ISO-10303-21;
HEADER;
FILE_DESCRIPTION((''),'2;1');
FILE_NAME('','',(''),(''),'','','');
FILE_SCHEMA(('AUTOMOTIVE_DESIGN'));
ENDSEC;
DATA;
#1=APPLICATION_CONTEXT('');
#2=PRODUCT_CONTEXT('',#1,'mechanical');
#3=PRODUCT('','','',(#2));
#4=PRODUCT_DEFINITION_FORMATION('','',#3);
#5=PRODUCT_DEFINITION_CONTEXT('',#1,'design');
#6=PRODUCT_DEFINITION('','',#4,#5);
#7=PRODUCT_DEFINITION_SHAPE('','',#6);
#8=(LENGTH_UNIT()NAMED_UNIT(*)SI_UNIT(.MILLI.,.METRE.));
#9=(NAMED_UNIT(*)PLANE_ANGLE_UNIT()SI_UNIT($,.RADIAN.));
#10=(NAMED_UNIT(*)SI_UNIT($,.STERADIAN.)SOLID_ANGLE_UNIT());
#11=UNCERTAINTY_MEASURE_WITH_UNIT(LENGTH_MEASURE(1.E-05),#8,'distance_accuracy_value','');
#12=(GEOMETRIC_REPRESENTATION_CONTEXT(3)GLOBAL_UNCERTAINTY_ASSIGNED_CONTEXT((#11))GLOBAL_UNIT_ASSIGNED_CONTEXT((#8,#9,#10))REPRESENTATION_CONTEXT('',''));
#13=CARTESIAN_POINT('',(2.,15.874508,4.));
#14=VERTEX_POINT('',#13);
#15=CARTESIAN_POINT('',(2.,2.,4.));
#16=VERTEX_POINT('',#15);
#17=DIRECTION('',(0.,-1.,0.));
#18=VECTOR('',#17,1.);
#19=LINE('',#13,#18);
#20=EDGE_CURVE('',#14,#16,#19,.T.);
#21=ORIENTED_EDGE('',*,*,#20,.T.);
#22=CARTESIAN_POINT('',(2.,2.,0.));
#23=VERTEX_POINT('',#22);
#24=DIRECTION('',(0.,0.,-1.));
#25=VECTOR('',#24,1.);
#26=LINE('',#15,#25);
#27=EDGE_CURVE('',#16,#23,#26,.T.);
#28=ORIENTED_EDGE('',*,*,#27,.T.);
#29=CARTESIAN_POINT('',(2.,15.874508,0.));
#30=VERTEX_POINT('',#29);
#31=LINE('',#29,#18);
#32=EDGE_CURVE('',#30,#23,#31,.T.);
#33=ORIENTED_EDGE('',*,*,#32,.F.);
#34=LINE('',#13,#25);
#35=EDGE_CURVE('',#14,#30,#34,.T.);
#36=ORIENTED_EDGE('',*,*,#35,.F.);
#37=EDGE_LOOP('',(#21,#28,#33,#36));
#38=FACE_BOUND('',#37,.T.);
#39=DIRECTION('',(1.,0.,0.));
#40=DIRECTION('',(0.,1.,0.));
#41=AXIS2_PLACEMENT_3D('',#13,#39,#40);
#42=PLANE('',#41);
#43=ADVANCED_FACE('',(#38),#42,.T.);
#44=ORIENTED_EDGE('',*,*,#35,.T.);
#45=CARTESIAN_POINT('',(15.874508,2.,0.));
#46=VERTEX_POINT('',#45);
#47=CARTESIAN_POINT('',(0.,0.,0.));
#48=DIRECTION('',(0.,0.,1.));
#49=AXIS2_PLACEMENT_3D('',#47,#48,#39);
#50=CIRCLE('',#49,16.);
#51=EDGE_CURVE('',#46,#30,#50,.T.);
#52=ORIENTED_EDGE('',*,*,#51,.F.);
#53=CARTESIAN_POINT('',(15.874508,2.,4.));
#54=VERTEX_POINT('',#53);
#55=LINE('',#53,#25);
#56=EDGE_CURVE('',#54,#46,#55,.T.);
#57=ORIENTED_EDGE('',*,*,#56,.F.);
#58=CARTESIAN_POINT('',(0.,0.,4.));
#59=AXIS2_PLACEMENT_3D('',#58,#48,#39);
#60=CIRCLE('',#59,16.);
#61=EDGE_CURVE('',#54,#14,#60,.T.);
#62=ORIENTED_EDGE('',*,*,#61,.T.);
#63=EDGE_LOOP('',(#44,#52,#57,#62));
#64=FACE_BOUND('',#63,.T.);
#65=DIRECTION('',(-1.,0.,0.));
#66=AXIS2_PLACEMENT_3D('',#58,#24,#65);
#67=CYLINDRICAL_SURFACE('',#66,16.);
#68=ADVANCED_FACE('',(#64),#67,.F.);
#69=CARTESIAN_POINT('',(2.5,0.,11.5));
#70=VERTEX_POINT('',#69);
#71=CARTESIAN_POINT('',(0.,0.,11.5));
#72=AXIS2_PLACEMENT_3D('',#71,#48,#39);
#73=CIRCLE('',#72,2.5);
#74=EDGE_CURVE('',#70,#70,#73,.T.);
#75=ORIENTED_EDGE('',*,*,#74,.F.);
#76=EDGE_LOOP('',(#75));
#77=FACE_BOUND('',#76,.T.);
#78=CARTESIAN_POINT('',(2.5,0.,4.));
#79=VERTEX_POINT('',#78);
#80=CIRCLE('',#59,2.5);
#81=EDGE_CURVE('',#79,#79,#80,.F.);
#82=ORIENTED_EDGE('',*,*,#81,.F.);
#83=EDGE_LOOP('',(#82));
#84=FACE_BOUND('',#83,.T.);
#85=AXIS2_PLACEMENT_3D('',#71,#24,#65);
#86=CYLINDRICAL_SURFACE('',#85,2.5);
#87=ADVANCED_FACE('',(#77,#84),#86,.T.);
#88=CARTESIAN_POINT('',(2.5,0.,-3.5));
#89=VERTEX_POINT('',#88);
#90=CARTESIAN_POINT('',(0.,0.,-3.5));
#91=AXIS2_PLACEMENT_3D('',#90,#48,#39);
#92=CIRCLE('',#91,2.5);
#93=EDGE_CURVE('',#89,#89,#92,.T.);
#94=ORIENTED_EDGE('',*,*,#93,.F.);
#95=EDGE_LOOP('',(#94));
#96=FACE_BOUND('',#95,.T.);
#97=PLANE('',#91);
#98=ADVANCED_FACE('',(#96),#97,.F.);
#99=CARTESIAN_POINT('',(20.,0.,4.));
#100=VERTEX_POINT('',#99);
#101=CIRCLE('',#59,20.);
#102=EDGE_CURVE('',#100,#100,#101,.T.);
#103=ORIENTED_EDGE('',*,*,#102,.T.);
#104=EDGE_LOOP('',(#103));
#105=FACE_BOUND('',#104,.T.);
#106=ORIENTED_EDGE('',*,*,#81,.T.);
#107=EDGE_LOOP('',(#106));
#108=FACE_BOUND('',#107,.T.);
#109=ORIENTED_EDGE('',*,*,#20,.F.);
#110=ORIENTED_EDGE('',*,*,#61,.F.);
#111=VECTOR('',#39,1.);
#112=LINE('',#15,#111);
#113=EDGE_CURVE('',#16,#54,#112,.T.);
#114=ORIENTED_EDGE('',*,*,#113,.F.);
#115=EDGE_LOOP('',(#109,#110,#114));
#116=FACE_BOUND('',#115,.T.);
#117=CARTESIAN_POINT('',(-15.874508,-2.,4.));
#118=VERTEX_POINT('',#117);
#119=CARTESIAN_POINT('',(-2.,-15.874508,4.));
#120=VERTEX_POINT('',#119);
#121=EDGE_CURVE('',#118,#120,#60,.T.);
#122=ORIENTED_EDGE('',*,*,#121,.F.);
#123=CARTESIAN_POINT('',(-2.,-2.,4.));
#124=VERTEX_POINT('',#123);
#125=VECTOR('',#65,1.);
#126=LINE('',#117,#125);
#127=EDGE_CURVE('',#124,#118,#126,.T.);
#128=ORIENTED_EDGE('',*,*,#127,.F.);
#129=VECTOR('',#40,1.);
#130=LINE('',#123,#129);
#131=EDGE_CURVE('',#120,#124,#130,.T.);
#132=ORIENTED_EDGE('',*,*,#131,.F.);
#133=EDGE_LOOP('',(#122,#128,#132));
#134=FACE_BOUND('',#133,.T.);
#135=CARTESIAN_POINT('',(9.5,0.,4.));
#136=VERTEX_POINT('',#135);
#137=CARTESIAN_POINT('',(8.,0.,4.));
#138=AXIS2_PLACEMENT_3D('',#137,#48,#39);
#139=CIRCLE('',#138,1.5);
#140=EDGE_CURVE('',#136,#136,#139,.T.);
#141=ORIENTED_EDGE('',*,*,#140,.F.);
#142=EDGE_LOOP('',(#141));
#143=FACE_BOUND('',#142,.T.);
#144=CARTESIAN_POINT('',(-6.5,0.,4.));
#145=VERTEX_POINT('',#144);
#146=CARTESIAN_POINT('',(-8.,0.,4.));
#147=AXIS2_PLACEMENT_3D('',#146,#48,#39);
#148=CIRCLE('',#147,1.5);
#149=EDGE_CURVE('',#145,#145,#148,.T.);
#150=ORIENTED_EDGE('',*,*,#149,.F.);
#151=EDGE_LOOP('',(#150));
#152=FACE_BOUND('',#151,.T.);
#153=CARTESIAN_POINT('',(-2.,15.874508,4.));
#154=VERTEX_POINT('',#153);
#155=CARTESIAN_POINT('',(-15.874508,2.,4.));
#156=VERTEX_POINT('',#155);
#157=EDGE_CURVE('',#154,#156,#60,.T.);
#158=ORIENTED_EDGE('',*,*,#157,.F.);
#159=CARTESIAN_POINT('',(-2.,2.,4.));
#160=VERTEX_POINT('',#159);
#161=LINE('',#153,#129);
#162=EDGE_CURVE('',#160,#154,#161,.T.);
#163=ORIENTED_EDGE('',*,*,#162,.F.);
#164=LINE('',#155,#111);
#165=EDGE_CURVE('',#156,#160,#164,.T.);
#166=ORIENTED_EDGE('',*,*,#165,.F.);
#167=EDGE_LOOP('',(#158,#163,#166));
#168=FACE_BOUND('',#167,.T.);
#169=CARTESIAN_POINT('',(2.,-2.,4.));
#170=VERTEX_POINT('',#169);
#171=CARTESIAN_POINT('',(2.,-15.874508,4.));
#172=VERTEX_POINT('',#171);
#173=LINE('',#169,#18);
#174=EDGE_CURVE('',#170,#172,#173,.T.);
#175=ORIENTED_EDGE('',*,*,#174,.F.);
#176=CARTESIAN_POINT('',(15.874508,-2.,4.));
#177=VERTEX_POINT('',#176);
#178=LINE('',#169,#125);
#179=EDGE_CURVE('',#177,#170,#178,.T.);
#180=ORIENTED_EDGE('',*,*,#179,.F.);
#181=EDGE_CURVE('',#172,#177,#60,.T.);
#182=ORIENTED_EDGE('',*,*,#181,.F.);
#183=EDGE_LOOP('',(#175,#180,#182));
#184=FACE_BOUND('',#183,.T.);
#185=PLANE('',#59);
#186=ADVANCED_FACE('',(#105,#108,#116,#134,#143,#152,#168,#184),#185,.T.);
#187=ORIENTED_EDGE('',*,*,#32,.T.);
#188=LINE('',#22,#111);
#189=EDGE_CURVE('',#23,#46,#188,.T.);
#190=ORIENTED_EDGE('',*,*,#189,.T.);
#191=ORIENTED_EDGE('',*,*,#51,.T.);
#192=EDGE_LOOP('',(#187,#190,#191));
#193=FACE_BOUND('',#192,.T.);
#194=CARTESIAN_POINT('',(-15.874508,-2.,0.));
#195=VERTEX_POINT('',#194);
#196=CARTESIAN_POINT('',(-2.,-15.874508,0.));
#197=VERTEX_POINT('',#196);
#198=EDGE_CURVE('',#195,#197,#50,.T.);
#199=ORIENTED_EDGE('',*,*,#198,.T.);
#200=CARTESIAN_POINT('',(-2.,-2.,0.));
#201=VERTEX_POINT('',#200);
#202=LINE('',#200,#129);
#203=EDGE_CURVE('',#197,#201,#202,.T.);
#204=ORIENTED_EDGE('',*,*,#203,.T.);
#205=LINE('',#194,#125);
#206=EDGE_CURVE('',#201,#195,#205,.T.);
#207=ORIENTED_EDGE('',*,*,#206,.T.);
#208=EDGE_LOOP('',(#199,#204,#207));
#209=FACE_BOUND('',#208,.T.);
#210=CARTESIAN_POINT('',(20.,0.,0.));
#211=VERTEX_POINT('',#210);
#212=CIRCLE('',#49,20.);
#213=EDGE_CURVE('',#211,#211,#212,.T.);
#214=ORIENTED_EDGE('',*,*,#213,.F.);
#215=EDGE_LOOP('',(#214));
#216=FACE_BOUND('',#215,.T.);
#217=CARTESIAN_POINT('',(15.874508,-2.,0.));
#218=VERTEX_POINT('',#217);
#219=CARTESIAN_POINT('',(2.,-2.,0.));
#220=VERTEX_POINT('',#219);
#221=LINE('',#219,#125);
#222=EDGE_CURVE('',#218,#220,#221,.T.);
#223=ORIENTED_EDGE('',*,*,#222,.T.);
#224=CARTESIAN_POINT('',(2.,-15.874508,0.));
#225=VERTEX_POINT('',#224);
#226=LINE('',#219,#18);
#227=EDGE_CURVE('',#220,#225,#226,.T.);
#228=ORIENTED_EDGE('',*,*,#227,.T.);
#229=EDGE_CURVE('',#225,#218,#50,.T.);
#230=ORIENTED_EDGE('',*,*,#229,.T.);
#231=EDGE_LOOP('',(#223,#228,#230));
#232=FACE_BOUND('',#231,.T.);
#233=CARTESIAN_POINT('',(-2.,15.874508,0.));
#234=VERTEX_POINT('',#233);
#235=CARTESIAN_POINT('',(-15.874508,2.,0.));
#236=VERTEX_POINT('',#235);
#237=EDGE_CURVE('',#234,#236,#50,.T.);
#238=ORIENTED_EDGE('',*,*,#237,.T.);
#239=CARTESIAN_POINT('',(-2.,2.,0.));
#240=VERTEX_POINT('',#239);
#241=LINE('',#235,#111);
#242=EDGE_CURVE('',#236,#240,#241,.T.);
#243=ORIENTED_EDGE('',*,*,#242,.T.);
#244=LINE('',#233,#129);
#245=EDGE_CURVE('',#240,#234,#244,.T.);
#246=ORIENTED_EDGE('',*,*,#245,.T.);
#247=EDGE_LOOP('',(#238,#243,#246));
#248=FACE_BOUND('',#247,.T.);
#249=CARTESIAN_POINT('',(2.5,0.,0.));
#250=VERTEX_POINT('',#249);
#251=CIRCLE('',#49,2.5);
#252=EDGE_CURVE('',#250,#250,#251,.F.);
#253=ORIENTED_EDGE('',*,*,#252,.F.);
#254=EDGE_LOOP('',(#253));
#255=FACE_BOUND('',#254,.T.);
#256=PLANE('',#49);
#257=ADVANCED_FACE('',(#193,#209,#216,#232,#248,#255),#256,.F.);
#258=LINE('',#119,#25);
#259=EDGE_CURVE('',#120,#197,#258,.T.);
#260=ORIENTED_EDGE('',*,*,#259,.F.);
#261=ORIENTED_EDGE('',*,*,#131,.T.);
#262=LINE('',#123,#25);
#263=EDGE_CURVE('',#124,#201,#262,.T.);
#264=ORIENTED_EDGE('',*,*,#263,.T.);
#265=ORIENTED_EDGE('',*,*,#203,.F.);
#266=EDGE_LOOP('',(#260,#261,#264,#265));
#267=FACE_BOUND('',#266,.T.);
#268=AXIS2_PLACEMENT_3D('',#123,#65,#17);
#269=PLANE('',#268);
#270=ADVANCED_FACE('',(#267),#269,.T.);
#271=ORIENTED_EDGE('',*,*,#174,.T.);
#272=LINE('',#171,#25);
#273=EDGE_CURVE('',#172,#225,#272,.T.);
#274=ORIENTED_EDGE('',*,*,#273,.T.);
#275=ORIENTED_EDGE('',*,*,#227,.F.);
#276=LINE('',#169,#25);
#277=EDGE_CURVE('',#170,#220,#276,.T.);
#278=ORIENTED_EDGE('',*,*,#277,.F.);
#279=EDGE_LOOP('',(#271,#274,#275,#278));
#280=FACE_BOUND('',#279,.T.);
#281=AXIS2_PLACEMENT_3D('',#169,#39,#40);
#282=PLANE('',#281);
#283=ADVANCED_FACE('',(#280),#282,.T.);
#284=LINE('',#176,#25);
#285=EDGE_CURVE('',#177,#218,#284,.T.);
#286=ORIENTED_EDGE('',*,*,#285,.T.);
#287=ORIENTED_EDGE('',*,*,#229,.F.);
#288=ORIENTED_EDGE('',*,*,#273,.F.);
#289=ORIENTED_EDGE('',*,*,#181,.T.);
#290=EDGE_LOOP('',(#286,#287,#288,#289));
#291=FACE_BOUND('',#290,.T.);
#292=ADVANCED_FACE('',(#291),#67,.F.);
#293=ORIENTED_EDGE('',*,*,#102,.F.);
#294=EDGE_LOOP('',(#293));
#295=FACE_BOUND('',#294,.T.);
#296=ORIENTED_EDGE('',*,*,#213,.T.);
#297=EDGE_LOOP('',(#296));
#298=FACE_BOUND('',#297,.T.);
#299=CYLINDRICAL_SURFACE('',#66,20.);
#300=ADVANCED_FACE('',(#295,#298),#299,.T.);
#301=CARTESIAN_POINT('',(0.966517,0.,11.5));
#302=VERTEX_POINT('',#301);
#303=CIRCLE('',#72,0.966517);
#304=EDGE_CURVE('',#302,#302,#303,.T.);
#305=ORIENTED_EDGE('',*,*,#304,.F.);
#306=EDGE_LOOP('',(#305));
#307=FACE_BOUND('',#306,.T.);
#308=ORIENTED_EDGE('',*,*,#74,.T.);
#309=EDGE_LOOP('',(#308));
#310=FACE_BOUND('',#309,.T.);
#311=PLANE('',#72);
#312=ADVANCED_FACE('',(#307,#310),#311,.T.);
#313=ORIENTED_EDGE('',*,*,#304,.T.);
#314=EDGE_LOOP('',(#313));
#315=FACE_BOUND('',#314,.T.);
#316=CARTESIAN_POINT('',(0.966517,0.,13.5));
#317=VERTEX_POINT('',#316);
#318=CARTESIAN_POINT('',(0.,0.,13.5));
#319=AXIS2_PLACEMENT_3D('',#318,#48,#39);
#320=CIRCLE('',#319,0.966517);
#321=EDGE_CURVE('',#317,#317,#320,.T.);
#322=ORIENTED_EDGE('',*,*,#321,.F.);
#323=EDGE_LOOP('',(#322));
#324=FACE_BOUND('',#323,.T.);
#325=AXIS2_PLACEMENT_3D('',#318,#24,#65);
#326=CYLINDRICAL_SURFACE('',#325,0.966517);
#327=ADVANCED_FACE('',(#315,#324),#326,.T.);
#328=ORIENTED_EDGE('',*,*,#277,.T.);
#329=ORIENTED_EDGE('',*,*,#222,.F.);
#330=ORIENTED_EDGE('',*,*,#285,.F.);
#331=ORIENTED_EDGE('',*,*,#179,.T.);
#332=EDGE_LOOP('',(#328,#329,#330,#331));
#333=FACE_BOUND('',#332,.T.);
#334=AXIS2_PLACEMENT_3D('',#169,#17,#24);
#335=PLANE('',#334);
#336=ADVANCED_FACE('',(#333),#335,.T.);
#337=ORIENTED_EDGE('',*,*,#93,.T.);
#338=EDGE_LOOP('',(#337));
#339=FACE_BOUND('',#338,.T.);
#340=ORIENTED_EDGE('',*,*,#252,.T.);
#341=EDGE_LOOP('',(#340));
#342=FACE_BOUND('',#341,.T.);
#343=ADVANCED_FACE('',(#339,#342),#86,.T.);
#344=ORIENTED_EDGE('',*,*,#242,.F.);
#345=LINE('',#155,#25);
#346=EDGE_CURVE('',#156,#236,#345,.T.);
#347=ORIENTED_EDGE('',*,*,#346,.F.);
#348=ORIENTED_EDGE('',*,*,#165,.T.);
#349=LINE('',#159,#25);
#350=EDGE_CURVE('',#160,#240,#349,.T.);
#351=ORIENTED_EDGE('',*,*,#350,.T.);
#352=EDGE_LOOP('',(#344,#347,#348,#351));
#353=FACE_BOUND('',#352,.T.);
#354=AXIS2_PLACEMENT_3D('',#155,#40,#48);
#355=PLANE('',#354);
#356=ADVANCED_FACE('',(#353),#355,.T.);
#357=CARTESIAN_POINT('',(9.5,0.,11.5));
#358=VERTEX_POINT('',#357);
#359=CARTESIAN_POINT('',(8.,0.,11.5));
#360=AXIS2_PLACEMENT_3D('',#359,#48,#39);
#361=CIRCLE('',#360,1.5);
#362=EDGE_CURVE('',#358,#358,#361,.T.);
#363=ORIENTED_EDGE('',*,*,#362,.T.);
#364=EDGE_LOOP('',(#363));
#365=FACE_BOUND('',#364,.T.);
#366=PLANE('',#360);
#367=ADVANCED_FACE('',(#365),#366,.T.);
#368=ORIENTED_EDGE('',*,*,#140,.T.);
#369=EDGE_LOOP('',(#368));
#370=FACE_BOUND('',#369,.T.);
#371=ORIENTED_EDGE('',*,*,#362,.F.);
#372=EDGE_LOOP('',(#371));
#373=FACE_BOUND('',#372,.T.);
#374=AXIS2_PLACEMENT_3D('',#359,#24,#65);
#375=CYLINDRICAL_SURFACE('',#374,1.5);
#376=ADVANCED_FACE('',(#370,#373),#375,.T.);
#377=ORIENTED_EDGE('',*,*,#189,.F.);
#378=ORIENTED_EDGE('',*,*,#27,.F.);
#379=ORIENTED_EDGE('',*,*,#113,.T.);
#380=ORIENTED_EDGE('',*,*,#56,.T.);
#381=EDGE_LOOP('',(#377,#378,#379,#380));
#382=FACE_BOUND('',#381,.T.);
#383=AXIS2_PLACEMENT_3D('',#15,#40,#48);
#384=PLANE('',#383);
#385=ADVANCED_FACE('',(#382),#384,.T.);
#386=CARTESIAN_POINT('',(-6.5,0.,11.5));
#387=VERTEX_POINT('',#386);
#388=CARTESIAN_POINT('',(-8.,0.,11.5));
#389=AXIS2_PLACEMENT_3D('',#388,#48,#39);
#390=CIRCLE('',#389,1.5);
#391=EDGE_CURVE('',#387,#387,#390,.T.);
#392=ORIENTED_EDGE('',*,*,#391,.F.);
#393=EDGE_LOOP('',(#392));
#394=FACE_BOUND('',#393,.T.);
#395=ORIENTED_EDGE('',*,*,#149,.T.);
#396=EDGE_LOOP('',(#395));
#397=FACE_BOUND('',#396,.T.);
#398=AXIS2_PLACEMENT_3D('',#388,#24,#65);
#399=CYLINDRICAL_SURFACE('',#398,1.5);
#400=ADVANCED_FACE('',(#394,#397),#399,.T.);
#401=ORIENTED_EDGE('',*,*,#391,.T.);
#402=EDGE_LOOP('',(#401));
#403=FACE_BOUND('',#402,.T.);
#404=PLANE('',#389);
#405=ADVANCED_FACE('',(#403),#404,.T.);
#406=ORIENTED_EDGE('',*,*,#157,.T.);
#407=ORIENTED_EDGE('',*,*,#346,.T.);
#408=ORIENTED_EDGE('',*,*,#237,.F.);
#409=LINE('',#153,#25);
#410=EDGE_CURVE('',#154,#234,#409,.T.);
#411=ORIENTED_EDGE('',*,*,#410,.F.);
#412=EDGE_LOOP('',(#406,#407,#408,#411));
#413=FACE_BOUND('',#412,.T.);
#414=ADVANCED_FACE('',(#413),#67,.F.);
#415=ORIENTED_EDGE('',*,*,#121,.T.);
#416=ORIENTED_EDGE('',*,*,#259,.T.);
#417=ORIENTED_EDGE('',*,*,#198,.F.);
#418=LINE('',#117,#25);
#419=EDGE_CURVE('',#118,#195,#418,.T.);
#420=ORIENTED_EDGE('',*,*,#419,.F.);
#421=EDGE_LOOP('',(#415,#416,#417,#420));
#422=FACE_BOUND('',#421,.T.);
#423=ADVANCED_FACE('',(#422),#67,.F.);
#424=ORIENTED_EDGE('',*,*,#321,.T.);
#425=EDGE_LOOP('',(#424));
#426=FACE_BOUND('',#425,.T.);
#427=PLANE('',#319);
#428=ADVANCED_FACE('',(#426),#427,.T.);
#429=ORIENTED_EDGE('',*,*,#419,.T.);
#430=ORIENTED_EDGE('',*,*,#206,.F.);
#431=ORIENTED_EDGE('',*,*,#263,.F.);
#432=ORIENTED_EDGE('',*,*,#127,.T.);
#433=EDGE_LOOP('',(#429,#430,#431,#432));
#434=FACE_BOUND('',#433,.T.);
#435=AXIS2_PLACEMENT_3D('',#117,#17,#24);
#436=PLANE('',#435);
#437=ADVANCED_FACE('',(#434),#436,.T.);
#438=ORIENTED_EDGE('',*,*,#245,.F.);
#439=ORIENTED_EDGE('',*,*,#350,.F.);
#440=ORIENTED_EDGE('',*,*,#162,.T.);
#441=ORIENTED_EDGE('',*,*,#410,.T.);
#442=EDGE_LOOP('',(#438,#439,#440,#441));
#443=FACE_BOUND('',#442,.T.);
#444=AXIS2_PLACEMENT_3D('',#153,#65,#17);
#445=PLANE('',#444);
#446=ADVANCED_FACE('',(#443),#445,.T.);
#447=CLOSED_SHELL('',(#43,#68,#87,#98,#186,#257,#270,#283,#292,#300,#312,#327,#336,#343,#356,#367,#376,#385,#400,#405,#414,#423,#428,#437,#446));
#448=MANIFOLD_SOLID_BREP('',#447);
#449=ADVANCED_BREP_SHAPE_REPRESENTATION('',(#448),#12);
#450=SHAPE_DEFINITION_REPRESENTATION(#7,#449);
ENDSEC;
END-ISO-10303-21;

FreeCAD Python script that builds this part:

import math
import FreeCAD as App
import Part
import Sketcher

V = App.Vector
Q = App.Units.Quantity

doc = App.newDocument("Part")
body = doc.addObject("PartDesign::Body", "Body")

# Sketch on XY plane
sketch1 = body.newObject("Sketcher::SketchObject", "Sketch")
sketch1.AttachmentSupport = (doc.getObject("XY_Plane"), [""])
sketch1.MapMode = "FlatFace"
sketch1.addGeometry(Part.Circle(V(0, 0, 0), V(0, 0, 1), 20), False)
sketch1.addGeometry(Part.ArcOfCircle(Part.Circle(V(0, 0, 0), V(0, 0, 1), 16), math.radians(-173), math.radians(-97)), False)
sketch1.addGeometry(Part.LineSegment(V(-16, -2, 0), V(-2, -2, 0)), False)
sketch1.addGeometry(Part.LineSegment(V(-2, -2, 0), V(-2, -16, 0)), False)
sketch1.addGeometry(Part.LineSegment(V(2, -16, 0), V(2, -2, 0)), False)
sketch1.addGeometry(Part.LineSegment(V(2, -2, 0), V(16, -2, 0)), False)
sketch1.addGeometry(Part.ArcOfCircle(Part.Circle(V(0, 0, 0), V(0, 0, 1), 16), math.radians(-83), math.radians(-7)), False)
sketch1.addGeometry(Part.LineSegment(V(-2, 2, 0), V(-16, 2, 0)), False)
sketch1.addGeometry(Part.ArcOfCircle(Part.Circle(V(0, 0, 0), V(0, 0, 1), 16), math.radians(97), math.radians(173)), False)
sketch1.addGeometry(Part.LineSegment(V(-2, 16, 0), V(-2, 2, 0)), False)
sketch1.addGeometry(Part.LineSegment(V(2, 2, 0), V(2, 16, 0)), False)
sketch1.addGeometry(Part.ArcOfCircle(Part.Circle(V(0, 0, 0), V(0, 0, 1), 16), math.radians(7), math.radians(83)), False)
sketch1.addGeometry(Part.LineSegment(V(16, 2, 0), V(2, 2, 0)), False)
sketch1.addConstraint(Sketcher.Constraint("Coincident", 1, 1, 2, 1))
sketch1.addConstraint(Sketcher.Constraint("Coincident", 2, 2, 3, 1))
sketch1.addConstraint(Sketcher.Constraint("Coincident", 3, 2, 1, 2))
sketch1.addConstraint(Sketcher.Constraint("Coincident", 4, 2, 5, 1))
sketch1.addConstraint(Sketcher.Constraint("Coincident", 5, 2, 6, 2))
sketch1.addConstraint(Sketcher.Constraint("Coincident", 6, 1, 4, 1))
sketch1.addConstraint(Sketcher.Constraint("Coincident", 7, 2, 8, 2))
sketch1.addConstraint(Sketcher.Constraint("Coincident", 8, 1, 9, 1))
sketch1.addConstraint(Sketcher.Constraint("Coincident", 9, 2, 7, 1))
sketch1.addConstraint(Sketcher.Constraint("Coincident", 10, 2, 11, 2))
sketch1.addConstraint(Sketcher.Constraint("Coincident", 11, 1, 12, 1))
sketch1.addConstraint(Sketcher.Constraint("Coincident", 12, 2, 10, 1))
sketch1.addConstraint(Sketcher.Constraint("Horizontal", 2))
sketch1.addConstraint(Sketcher.Constraint("Vertical", 3))
sketch1.addConstraint(Sketcher.Constraint("Vertical", 4))
sketch1.addConstraint(Sketcher.Constraint("Horizontal", 5))
sketch1.addConstraint(Sketcher.Constraint("Horizontal", 7))
sketch1.addConstraint(Sketcher.Constraint("Vertical", 9))
sketch1.addConstraint(Sketcher.Constraint("Vertical", 10))
sketch1.addConstraint(Sketcher.Constraint("Horizontal", 12))
sketch1.addConstraint(Sketcher.Constraint("Coincident", 0, 3, -1, 1))
sketch1.addConstraint(Sketcher.Constraint("Coincident", 1, 3, -1, 1))
sketch1.addConstraint(Sketcher.Constraint("Coincident", 6, 3, -1, 1))
sketch1.addConstraint(Sketcher.Constraint("Coincident", 8, 3, -1, 1))
sketch1.addConstraint(Sketcher.Constraint("Coincident", 11, 3, -1, 1))
sketch1.addConstraint(Sketcher.Constraint("Equal", 1, 6))
sketch1.addConstraint(Sketcher.Constraint("Equal", 6, 8))
sketch1.addConstraint(Sketcher.Constraint("Equal", 8, 11))
sketch1.addConstraint(Sketcher.Constraint("Symmetric", 4, 2, 9, 2, -1, 1))
sketch1.addConstraint(Sketcher.Constraint("Symmetric", 2, 2, 12, 2, -1, 1))
sketch1.addConstraint(Sketcher.Constraint("Symmetric", 2, 2, 4, 2, -2))
sketch1.addConstraint(Sketcher.Constraint("Equal", 12, 3))
sketch1.addConstraint(Sketcher.Constraint("Diameter", 0, Q("40 mm")))
sketch1.addConstraint(Sketcher.Constraint("Radius", 1, Q("16 mm")))
sketch1.addConstraint(Sketcher.Constraint("DistanceY", 1, 1, -1, 1, Q("2 mm")))
pad1 = body.newObject("PartDesign::Pad", "Pad")
pad1.Profile = sketch1
pad1.Length = 4

# Sketch on XY plane
sketch2 = body.newObject("Sketcher::SketchObject", "Sketch001")
sketch2.AttachmentSupport = (doc.getObject("XY_Plane"), [""])
sketch2.MapMode = "FlatFace"
sketch2.AttachmentOffset = App.Placement(V(0, 0, 4), App.Rotation())
sketch2.addGeometry(Part.Circle(V(0, 0, 0), V(0, 0, 1), 2.5), False)
sketch2.addConstraint(Sketcher.Constraint("Coincident", 0, 3, -1, 1))
sketch2.addConstraint(Sketcher.Constraint("Diameter", 0, Q("5 mm")))
pad2 = body.newObject("PartDesign::Pad", "Pad001")
pad2.Profile = sketch2
pad2.Length = 15
pad2.Midplane = True

# Sketch on XY plane
sketch3 = body.newObject("Sketcher::SketchObject", "Sketch002")
sketch3.AttachmentSupport = (doc.getObject("XY_Plane"), [""])
sketch3.MapMode = "FlatFace"
sketch3.AttachmentOffset = App.Placement(V(0, 0, 11.5), App.Rotation())
sketch3.addGeometry(Part.Circle(V(0, 0, 0), V(0, 0, 1), 1), False)
sketch3.addConstraint(Sketcher.Constraint("Coincident", 0, 3, -1, 1))
sketch3.addConstraint(Sketcher.Constraint("Diameter", 0, Q("1.933033 mm")))
pad3 = body.newObject("PartDesign::Pad", "Pad002")
pad3.Profile = sketch3
pad3.Length = 2

# Sketch on XY plane
sketch4 = body.newObject("Sketcher::SketchObject", "Sketch003")
sketch4.AttachmentSupport = (doc.getObject("XY_Plane"), [""])
sketch4.MapMode = "FlatFace"
sketch4.AttachmentOffset = App.Placement(V(0, 0, 4), App.Rotation())
sketch4.addGeometry(Part.Circle(V(8, 0, 0), V(0, 0, 1), 1.5), False)
sketch4.addGeometry(Part.Circle(V(-8, 0, 0), V(0, 0, 1), 1.5), False)
sketch4.addConstraint(Sketcher.Constraint("Equal", 0, 1))
sketch4.addConstraint(Sketcher.Constraint("Symmetric", 0, 3, 1, 3, -1, 1))
sketch4.addConstraint(Sketcher.Constraint("PointOnObject", 0, 3, -1))
sketch4.addConstraint(Sketcher.Constraint("Diameter", 0, Q("3 mm")))
sketch4.addConstraint(Sketcher.Constraint("DistanceX", -1, 1, 0, 3, Q("8 mm")))
pad4 = body.newObject("PartDesign::Pad", "Pad003")
pad4.Profile = sketch4
pad4.Length = 7.5

doc.recompute()
